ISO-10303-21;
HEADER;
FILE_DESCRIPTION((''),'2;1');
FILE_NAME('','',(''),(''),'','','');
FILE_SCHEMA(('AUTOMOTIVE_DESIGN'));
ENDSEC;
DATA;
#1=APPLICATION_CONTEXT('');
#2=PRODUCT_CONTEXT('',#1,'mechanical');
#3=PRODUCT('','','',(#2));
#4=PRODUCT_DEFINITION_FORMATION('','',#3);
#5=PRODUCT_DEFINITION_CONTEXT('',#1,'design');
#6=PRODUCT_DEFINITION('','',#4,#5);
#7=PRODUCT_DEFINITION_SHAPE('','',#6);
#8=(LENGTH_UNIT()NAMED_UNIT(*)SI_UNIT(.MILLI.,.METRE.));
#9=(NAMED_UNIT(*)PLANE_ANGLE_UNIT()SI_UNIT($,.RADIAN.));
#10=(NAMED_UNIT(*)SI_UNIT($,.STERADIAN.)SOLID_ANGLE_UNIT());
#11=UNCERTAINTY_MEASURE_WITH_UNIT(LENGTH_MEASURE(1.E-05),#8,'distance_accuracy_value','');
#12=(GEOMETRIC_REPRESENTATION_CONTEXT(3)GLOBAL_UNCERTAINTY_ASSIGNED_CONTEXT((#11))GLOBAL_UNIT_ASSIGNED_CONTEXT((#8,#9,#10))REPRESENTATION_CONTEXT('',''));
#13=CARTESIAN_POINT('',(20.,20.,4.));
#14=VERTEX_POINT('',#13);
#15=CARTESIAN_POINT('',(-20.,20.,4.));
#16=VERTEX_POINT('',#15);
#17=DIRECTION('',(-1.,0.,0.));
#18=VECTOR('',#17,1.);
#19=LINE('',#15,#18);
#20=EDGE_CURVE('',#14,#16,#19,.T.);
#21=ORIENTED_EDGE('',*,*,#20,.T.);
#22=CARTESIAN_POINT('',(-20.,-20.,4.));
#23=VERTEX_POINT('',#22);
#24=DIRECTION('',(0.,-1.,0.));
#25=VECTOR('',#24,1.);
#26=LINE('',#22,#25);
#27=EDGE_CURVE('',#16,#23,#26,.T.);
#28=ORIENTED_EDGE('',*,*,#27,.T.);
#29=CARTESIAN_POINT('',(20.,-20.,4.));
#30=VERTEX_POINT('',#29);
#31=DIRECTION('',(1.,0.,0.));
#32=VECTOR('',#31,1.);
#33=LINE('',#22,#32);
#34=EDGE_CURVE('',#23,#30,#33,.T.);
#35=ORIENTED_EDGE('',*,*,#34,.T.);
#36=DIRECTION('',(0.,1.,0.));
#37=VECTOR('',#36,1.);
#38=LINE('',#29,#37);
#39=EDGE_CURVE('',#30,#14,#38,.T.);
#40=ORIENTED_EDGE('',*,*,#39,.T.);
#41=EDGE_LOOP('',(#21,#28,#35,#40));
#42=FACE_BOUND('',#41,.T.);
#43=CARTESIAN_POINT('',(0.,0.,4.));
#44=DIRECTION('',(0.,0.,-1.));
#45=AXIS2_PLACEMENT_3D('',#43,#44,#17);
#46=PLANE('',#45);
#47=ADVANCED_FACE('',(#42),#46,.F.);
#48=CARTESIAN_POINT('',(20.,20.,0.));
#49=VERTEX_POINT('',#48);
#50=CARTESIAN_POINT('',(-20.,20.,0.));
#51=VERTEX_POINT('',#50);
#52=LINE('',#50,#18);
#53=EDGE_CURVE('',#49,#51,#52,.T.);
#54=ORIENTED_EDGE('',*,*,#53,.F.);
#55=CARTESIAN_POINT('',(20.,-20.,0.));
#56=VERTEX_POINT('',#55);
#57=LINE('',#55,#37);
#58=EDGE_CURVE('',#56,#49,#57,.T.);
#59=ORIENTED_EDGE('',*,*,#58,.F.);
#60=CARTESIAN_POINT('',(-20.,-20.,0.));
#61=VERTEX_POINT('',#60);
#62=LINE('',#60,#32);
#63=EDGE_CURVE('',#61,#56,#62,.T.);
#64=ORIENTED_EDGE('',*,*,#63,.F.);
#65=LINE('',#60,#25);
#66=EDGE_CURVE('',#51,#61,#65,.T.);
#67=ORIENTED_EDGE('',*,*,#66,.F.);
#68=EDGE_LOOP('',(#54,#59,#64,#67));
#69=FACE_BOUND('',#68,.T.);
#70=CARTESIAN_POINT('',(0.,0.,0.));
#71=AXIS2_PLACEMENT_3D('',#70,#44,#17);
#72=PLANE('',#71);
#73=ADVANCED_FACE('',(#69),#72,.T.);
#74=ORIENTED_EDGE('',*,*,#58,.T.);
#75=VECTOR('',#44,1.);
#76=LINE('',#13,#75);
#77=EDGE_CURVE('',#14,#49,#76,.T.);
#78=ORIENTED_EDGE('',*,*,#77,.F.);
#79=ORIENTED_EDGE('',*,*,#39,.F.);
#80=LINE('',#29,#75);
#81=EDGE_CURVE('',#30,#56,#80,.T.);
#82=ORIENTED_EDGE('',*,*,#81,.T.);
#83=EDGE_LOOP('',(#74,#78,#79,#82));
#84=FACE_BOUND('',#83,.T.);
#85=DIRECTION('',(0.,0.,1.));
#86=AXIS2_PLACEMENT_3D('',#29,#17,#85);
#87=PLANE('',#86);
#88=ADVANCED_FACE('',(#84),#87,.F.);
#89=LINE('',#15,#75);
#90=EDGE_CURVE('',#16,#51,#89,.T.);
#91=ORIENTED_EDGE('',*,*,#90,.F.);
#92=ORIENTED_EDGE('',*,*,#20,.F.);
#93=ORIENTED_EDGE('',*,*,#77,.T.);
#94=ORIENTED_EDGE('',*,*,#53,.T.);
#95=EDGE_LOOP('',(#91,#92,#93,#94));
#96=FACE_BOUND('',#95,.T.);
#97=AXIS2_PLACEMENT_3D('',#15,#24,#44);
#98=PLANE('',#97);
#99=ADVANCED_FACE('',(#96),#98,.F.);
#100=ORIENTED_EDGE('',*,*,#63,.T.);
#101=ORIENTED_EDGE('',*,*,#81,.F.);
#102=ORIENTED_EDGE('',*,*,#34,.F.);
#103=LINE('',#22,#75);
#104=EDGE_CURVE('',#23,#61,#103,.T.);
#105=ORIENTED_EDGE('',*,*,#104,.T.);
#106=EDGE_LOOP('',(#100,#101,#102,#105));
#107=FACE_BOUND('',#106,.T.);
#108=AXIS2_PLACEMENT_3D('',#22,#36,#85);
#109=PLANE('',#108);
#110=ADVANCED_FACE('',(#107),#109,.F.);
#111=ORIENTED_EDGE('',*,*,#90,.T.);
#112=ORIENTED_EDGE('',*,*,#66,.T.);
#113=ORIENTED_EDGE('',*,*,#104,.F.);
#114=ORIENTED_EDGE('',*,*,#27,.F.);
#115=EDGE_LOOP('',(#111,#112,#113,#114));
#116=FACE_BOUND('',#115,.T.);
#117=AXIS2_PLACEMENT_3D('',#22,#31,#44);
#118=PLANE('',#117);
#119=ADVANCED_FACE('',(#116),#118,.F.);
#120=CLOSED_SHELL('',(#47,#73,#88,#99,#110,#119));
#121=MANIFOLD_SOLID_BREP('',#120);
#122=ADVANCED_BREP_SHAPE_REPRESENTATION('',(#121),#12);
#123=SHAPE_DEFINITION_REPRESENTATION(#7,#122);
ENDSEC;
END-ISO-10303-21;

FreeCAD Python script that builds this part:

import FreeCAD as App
import Part
import Sketcher
from FreeCAD import Vector
Q = App.Units.Quantity


def add_polygon(sketch, points):
    """Adds a closed chain of lines whose ends are joined by coincident constraints."""
    first, n = sketch.GeometryCount, len(points)
    for a, b in zip(points, points[1:] + points[:1]):
        sketch.addGeometry(Part.LineSegment(App.Vector(*a, 0), App.Vector(*b, 0)), False)
    for i in range(n):
        sketch.addConstraint(Sketcher.Constraint("Coincident", first + i, 2, first + (i + 1) % n, 1))

doc = App.newDocument("Part")
params = doc.addObject("Spreadsheet::Sheet", "Params")
for row, (alias, value) in enumerate([
    ("sketch1_width", "40 mm"),
    ("pad1_length", "4 mm"),
], start=1):
    params.set(f"A{row}", alias)
    params.set(f"B{row}", "=" + value)
    params.setAlias(f"B{row}", alias)

body = doc.addObject("PartDesign::Body", "Body")

# Sketch on XY plane
sketch1 = body.newObject("Sketcher::SketchObject", "Sketch")
sketch1.AttachmentSupport = (doc.getObject("XY_Plane"), [""])
sketch1.MapMode = "FlatFace"
add_polygon(sketch1, [(-20, 20), (-20, -20), (20, -20), (20, 20)])  # lines 0-3
sketch1.addConstraint([
    Sketcher.Constraint("Vertical", 0),
    Sketcher.Constraint("Horizontal", 1),
    Sketcher.Constraint("Vertical", 2),
    Sketcher.Constraint("Horizontal", 3),
    Sketcher.Constraint("Symmetric", 0, 2, 2, 2, -1, 1),
    Sketcher.Constraint("Equal", 3, 0),
    Sketcher.Constraint("DistanceX", 1, 1, 1, 2, Q("40 mm")),
])
sketch1.setExpression("Constraints[10]", "Params.sketch1_width")
pad1 = body.newObject("PartDesign::Pad", "Pad")
pad1.Profile = sketch1
pad1.setExpression("Length", "Params.pad1_length")

doc.recompute()
